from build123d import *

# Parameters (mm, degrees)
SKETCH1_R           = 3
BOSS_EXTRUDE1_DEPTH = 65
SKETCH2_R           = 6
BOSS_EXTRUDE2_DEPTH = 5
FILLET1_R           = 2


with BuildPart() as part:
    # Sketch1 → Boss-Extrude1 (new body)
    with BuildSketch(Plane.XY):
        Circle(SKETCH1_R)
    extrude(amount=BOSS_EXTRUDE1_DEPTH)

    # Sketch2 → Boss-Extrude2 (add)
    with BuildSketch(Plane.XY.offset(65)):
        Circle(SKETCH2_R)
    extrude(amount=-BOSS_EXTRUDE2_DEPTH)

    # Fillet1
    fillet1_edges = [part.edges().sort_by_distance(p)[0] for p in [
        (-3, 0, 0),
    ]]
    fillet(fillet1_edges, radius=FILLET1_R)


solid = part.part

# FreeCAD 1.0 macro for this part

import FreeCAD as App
import Part
import Sketcher
from FreeCAD import Vector


def edges_at(feature, points):
    """Names of the edges that pass closest to the given points."""
    edges = feature.Shape.Edges
    near = lambda p: min(range(len(edges)), key=lambda i: edges[i].distToShape(Part.Vertex(*p))[0])
    return sorted({f"Edge{near(p) + 1}" for p in points})

doc = App.newDocument("Part")
params = doc.addObject("Spreadsheet::Sheet", "Params")
for row, (alias, value) in enumerate([
    ("sketch1_diameter", "6 mm"),
    ("pad1_length", "65 mm"),
    ("sketch2_diameter", "12 mm"),
    ("pad2_length", "5 mm"),
    ("fillet_radius", "2 mm"),
], start=1):
    params.set(f"A{row}", alias)
    params.set(f"B{row}", "=" + value)
    params.setAlias(f"B{row}", alias)

body = doc.addObject("PartDesign::Body", "Body")

# Sketch on XY plane
sketch1 = doc.addObject("Sketcher::SketchObject", "Sketch")
body.addObject(sketch1)
sketch1.AttachmentSupport = (doc.XY_Plane, [""])
sketch1.MapMode = "FlatFace"
sketch1.addGeometry(Part.Circle(Vector(0, 0, 0), Vector(0, 0, 1), 3), False)
sketch1.addConstraint([
    Sketcher.Constraint("Coincident", 0, 3, -1, 1),
    Sketcher.Constraint("Diameter", 0, 6.0),
])
sketch1.setExpression("Constraints[1]", "Params.sketch1_diameter")
pad1 = doc.addObject("PartDesign::Pad", "Pad")
body.addObject(pad1)
pad1.Profile = sketch1
pad1.setExpression("Length", "Params.pad1_length")

# Sketch on XY plane
sketch2 = doc.addObject("Sketcher::SketchObject", "Sketch001")
body.addObject(sketch2)
sketch2.AttachmentSupport = (doc.XY_Plane, [""])
sketch2.MapMode = "FlatFace"
sketch2.AttachmentOffset = App.Placement(Vector(0, 0, 65), App.Rotation())
sketch2.addGeometry(Part.Circle(Vector(0, 0, 0), Vector(0, 0, 1), 6), False)
sketch2.addConstraint([
    Sketcher.Constraint("Coincident", 0, 3, -1, 1),
    Sketcher.Constraint("Diameter", 0, 12.0),
])
sketch2.setExpression("Constraints[1]", "Params.sketch2_diameter")
pad2 = doc.addObject("PartDesign::Pad", "Pad001")
body.addObject(pad2)
pad2.Profile = sketch2
pad2.setExpression("Length", "Params.pad2_length")
pad2.Reversed = True
doc.recompute()

fillet = doc.addObject("PartDesign::Fillet", "Fillet")
body.addObject(fillet)
fillet.Base = (pad2, edges_at(pad2, [(-3, 0, 0)]))
fillet.setExpression("Radius", "Params.fillet_radius")

doc.recompute()
